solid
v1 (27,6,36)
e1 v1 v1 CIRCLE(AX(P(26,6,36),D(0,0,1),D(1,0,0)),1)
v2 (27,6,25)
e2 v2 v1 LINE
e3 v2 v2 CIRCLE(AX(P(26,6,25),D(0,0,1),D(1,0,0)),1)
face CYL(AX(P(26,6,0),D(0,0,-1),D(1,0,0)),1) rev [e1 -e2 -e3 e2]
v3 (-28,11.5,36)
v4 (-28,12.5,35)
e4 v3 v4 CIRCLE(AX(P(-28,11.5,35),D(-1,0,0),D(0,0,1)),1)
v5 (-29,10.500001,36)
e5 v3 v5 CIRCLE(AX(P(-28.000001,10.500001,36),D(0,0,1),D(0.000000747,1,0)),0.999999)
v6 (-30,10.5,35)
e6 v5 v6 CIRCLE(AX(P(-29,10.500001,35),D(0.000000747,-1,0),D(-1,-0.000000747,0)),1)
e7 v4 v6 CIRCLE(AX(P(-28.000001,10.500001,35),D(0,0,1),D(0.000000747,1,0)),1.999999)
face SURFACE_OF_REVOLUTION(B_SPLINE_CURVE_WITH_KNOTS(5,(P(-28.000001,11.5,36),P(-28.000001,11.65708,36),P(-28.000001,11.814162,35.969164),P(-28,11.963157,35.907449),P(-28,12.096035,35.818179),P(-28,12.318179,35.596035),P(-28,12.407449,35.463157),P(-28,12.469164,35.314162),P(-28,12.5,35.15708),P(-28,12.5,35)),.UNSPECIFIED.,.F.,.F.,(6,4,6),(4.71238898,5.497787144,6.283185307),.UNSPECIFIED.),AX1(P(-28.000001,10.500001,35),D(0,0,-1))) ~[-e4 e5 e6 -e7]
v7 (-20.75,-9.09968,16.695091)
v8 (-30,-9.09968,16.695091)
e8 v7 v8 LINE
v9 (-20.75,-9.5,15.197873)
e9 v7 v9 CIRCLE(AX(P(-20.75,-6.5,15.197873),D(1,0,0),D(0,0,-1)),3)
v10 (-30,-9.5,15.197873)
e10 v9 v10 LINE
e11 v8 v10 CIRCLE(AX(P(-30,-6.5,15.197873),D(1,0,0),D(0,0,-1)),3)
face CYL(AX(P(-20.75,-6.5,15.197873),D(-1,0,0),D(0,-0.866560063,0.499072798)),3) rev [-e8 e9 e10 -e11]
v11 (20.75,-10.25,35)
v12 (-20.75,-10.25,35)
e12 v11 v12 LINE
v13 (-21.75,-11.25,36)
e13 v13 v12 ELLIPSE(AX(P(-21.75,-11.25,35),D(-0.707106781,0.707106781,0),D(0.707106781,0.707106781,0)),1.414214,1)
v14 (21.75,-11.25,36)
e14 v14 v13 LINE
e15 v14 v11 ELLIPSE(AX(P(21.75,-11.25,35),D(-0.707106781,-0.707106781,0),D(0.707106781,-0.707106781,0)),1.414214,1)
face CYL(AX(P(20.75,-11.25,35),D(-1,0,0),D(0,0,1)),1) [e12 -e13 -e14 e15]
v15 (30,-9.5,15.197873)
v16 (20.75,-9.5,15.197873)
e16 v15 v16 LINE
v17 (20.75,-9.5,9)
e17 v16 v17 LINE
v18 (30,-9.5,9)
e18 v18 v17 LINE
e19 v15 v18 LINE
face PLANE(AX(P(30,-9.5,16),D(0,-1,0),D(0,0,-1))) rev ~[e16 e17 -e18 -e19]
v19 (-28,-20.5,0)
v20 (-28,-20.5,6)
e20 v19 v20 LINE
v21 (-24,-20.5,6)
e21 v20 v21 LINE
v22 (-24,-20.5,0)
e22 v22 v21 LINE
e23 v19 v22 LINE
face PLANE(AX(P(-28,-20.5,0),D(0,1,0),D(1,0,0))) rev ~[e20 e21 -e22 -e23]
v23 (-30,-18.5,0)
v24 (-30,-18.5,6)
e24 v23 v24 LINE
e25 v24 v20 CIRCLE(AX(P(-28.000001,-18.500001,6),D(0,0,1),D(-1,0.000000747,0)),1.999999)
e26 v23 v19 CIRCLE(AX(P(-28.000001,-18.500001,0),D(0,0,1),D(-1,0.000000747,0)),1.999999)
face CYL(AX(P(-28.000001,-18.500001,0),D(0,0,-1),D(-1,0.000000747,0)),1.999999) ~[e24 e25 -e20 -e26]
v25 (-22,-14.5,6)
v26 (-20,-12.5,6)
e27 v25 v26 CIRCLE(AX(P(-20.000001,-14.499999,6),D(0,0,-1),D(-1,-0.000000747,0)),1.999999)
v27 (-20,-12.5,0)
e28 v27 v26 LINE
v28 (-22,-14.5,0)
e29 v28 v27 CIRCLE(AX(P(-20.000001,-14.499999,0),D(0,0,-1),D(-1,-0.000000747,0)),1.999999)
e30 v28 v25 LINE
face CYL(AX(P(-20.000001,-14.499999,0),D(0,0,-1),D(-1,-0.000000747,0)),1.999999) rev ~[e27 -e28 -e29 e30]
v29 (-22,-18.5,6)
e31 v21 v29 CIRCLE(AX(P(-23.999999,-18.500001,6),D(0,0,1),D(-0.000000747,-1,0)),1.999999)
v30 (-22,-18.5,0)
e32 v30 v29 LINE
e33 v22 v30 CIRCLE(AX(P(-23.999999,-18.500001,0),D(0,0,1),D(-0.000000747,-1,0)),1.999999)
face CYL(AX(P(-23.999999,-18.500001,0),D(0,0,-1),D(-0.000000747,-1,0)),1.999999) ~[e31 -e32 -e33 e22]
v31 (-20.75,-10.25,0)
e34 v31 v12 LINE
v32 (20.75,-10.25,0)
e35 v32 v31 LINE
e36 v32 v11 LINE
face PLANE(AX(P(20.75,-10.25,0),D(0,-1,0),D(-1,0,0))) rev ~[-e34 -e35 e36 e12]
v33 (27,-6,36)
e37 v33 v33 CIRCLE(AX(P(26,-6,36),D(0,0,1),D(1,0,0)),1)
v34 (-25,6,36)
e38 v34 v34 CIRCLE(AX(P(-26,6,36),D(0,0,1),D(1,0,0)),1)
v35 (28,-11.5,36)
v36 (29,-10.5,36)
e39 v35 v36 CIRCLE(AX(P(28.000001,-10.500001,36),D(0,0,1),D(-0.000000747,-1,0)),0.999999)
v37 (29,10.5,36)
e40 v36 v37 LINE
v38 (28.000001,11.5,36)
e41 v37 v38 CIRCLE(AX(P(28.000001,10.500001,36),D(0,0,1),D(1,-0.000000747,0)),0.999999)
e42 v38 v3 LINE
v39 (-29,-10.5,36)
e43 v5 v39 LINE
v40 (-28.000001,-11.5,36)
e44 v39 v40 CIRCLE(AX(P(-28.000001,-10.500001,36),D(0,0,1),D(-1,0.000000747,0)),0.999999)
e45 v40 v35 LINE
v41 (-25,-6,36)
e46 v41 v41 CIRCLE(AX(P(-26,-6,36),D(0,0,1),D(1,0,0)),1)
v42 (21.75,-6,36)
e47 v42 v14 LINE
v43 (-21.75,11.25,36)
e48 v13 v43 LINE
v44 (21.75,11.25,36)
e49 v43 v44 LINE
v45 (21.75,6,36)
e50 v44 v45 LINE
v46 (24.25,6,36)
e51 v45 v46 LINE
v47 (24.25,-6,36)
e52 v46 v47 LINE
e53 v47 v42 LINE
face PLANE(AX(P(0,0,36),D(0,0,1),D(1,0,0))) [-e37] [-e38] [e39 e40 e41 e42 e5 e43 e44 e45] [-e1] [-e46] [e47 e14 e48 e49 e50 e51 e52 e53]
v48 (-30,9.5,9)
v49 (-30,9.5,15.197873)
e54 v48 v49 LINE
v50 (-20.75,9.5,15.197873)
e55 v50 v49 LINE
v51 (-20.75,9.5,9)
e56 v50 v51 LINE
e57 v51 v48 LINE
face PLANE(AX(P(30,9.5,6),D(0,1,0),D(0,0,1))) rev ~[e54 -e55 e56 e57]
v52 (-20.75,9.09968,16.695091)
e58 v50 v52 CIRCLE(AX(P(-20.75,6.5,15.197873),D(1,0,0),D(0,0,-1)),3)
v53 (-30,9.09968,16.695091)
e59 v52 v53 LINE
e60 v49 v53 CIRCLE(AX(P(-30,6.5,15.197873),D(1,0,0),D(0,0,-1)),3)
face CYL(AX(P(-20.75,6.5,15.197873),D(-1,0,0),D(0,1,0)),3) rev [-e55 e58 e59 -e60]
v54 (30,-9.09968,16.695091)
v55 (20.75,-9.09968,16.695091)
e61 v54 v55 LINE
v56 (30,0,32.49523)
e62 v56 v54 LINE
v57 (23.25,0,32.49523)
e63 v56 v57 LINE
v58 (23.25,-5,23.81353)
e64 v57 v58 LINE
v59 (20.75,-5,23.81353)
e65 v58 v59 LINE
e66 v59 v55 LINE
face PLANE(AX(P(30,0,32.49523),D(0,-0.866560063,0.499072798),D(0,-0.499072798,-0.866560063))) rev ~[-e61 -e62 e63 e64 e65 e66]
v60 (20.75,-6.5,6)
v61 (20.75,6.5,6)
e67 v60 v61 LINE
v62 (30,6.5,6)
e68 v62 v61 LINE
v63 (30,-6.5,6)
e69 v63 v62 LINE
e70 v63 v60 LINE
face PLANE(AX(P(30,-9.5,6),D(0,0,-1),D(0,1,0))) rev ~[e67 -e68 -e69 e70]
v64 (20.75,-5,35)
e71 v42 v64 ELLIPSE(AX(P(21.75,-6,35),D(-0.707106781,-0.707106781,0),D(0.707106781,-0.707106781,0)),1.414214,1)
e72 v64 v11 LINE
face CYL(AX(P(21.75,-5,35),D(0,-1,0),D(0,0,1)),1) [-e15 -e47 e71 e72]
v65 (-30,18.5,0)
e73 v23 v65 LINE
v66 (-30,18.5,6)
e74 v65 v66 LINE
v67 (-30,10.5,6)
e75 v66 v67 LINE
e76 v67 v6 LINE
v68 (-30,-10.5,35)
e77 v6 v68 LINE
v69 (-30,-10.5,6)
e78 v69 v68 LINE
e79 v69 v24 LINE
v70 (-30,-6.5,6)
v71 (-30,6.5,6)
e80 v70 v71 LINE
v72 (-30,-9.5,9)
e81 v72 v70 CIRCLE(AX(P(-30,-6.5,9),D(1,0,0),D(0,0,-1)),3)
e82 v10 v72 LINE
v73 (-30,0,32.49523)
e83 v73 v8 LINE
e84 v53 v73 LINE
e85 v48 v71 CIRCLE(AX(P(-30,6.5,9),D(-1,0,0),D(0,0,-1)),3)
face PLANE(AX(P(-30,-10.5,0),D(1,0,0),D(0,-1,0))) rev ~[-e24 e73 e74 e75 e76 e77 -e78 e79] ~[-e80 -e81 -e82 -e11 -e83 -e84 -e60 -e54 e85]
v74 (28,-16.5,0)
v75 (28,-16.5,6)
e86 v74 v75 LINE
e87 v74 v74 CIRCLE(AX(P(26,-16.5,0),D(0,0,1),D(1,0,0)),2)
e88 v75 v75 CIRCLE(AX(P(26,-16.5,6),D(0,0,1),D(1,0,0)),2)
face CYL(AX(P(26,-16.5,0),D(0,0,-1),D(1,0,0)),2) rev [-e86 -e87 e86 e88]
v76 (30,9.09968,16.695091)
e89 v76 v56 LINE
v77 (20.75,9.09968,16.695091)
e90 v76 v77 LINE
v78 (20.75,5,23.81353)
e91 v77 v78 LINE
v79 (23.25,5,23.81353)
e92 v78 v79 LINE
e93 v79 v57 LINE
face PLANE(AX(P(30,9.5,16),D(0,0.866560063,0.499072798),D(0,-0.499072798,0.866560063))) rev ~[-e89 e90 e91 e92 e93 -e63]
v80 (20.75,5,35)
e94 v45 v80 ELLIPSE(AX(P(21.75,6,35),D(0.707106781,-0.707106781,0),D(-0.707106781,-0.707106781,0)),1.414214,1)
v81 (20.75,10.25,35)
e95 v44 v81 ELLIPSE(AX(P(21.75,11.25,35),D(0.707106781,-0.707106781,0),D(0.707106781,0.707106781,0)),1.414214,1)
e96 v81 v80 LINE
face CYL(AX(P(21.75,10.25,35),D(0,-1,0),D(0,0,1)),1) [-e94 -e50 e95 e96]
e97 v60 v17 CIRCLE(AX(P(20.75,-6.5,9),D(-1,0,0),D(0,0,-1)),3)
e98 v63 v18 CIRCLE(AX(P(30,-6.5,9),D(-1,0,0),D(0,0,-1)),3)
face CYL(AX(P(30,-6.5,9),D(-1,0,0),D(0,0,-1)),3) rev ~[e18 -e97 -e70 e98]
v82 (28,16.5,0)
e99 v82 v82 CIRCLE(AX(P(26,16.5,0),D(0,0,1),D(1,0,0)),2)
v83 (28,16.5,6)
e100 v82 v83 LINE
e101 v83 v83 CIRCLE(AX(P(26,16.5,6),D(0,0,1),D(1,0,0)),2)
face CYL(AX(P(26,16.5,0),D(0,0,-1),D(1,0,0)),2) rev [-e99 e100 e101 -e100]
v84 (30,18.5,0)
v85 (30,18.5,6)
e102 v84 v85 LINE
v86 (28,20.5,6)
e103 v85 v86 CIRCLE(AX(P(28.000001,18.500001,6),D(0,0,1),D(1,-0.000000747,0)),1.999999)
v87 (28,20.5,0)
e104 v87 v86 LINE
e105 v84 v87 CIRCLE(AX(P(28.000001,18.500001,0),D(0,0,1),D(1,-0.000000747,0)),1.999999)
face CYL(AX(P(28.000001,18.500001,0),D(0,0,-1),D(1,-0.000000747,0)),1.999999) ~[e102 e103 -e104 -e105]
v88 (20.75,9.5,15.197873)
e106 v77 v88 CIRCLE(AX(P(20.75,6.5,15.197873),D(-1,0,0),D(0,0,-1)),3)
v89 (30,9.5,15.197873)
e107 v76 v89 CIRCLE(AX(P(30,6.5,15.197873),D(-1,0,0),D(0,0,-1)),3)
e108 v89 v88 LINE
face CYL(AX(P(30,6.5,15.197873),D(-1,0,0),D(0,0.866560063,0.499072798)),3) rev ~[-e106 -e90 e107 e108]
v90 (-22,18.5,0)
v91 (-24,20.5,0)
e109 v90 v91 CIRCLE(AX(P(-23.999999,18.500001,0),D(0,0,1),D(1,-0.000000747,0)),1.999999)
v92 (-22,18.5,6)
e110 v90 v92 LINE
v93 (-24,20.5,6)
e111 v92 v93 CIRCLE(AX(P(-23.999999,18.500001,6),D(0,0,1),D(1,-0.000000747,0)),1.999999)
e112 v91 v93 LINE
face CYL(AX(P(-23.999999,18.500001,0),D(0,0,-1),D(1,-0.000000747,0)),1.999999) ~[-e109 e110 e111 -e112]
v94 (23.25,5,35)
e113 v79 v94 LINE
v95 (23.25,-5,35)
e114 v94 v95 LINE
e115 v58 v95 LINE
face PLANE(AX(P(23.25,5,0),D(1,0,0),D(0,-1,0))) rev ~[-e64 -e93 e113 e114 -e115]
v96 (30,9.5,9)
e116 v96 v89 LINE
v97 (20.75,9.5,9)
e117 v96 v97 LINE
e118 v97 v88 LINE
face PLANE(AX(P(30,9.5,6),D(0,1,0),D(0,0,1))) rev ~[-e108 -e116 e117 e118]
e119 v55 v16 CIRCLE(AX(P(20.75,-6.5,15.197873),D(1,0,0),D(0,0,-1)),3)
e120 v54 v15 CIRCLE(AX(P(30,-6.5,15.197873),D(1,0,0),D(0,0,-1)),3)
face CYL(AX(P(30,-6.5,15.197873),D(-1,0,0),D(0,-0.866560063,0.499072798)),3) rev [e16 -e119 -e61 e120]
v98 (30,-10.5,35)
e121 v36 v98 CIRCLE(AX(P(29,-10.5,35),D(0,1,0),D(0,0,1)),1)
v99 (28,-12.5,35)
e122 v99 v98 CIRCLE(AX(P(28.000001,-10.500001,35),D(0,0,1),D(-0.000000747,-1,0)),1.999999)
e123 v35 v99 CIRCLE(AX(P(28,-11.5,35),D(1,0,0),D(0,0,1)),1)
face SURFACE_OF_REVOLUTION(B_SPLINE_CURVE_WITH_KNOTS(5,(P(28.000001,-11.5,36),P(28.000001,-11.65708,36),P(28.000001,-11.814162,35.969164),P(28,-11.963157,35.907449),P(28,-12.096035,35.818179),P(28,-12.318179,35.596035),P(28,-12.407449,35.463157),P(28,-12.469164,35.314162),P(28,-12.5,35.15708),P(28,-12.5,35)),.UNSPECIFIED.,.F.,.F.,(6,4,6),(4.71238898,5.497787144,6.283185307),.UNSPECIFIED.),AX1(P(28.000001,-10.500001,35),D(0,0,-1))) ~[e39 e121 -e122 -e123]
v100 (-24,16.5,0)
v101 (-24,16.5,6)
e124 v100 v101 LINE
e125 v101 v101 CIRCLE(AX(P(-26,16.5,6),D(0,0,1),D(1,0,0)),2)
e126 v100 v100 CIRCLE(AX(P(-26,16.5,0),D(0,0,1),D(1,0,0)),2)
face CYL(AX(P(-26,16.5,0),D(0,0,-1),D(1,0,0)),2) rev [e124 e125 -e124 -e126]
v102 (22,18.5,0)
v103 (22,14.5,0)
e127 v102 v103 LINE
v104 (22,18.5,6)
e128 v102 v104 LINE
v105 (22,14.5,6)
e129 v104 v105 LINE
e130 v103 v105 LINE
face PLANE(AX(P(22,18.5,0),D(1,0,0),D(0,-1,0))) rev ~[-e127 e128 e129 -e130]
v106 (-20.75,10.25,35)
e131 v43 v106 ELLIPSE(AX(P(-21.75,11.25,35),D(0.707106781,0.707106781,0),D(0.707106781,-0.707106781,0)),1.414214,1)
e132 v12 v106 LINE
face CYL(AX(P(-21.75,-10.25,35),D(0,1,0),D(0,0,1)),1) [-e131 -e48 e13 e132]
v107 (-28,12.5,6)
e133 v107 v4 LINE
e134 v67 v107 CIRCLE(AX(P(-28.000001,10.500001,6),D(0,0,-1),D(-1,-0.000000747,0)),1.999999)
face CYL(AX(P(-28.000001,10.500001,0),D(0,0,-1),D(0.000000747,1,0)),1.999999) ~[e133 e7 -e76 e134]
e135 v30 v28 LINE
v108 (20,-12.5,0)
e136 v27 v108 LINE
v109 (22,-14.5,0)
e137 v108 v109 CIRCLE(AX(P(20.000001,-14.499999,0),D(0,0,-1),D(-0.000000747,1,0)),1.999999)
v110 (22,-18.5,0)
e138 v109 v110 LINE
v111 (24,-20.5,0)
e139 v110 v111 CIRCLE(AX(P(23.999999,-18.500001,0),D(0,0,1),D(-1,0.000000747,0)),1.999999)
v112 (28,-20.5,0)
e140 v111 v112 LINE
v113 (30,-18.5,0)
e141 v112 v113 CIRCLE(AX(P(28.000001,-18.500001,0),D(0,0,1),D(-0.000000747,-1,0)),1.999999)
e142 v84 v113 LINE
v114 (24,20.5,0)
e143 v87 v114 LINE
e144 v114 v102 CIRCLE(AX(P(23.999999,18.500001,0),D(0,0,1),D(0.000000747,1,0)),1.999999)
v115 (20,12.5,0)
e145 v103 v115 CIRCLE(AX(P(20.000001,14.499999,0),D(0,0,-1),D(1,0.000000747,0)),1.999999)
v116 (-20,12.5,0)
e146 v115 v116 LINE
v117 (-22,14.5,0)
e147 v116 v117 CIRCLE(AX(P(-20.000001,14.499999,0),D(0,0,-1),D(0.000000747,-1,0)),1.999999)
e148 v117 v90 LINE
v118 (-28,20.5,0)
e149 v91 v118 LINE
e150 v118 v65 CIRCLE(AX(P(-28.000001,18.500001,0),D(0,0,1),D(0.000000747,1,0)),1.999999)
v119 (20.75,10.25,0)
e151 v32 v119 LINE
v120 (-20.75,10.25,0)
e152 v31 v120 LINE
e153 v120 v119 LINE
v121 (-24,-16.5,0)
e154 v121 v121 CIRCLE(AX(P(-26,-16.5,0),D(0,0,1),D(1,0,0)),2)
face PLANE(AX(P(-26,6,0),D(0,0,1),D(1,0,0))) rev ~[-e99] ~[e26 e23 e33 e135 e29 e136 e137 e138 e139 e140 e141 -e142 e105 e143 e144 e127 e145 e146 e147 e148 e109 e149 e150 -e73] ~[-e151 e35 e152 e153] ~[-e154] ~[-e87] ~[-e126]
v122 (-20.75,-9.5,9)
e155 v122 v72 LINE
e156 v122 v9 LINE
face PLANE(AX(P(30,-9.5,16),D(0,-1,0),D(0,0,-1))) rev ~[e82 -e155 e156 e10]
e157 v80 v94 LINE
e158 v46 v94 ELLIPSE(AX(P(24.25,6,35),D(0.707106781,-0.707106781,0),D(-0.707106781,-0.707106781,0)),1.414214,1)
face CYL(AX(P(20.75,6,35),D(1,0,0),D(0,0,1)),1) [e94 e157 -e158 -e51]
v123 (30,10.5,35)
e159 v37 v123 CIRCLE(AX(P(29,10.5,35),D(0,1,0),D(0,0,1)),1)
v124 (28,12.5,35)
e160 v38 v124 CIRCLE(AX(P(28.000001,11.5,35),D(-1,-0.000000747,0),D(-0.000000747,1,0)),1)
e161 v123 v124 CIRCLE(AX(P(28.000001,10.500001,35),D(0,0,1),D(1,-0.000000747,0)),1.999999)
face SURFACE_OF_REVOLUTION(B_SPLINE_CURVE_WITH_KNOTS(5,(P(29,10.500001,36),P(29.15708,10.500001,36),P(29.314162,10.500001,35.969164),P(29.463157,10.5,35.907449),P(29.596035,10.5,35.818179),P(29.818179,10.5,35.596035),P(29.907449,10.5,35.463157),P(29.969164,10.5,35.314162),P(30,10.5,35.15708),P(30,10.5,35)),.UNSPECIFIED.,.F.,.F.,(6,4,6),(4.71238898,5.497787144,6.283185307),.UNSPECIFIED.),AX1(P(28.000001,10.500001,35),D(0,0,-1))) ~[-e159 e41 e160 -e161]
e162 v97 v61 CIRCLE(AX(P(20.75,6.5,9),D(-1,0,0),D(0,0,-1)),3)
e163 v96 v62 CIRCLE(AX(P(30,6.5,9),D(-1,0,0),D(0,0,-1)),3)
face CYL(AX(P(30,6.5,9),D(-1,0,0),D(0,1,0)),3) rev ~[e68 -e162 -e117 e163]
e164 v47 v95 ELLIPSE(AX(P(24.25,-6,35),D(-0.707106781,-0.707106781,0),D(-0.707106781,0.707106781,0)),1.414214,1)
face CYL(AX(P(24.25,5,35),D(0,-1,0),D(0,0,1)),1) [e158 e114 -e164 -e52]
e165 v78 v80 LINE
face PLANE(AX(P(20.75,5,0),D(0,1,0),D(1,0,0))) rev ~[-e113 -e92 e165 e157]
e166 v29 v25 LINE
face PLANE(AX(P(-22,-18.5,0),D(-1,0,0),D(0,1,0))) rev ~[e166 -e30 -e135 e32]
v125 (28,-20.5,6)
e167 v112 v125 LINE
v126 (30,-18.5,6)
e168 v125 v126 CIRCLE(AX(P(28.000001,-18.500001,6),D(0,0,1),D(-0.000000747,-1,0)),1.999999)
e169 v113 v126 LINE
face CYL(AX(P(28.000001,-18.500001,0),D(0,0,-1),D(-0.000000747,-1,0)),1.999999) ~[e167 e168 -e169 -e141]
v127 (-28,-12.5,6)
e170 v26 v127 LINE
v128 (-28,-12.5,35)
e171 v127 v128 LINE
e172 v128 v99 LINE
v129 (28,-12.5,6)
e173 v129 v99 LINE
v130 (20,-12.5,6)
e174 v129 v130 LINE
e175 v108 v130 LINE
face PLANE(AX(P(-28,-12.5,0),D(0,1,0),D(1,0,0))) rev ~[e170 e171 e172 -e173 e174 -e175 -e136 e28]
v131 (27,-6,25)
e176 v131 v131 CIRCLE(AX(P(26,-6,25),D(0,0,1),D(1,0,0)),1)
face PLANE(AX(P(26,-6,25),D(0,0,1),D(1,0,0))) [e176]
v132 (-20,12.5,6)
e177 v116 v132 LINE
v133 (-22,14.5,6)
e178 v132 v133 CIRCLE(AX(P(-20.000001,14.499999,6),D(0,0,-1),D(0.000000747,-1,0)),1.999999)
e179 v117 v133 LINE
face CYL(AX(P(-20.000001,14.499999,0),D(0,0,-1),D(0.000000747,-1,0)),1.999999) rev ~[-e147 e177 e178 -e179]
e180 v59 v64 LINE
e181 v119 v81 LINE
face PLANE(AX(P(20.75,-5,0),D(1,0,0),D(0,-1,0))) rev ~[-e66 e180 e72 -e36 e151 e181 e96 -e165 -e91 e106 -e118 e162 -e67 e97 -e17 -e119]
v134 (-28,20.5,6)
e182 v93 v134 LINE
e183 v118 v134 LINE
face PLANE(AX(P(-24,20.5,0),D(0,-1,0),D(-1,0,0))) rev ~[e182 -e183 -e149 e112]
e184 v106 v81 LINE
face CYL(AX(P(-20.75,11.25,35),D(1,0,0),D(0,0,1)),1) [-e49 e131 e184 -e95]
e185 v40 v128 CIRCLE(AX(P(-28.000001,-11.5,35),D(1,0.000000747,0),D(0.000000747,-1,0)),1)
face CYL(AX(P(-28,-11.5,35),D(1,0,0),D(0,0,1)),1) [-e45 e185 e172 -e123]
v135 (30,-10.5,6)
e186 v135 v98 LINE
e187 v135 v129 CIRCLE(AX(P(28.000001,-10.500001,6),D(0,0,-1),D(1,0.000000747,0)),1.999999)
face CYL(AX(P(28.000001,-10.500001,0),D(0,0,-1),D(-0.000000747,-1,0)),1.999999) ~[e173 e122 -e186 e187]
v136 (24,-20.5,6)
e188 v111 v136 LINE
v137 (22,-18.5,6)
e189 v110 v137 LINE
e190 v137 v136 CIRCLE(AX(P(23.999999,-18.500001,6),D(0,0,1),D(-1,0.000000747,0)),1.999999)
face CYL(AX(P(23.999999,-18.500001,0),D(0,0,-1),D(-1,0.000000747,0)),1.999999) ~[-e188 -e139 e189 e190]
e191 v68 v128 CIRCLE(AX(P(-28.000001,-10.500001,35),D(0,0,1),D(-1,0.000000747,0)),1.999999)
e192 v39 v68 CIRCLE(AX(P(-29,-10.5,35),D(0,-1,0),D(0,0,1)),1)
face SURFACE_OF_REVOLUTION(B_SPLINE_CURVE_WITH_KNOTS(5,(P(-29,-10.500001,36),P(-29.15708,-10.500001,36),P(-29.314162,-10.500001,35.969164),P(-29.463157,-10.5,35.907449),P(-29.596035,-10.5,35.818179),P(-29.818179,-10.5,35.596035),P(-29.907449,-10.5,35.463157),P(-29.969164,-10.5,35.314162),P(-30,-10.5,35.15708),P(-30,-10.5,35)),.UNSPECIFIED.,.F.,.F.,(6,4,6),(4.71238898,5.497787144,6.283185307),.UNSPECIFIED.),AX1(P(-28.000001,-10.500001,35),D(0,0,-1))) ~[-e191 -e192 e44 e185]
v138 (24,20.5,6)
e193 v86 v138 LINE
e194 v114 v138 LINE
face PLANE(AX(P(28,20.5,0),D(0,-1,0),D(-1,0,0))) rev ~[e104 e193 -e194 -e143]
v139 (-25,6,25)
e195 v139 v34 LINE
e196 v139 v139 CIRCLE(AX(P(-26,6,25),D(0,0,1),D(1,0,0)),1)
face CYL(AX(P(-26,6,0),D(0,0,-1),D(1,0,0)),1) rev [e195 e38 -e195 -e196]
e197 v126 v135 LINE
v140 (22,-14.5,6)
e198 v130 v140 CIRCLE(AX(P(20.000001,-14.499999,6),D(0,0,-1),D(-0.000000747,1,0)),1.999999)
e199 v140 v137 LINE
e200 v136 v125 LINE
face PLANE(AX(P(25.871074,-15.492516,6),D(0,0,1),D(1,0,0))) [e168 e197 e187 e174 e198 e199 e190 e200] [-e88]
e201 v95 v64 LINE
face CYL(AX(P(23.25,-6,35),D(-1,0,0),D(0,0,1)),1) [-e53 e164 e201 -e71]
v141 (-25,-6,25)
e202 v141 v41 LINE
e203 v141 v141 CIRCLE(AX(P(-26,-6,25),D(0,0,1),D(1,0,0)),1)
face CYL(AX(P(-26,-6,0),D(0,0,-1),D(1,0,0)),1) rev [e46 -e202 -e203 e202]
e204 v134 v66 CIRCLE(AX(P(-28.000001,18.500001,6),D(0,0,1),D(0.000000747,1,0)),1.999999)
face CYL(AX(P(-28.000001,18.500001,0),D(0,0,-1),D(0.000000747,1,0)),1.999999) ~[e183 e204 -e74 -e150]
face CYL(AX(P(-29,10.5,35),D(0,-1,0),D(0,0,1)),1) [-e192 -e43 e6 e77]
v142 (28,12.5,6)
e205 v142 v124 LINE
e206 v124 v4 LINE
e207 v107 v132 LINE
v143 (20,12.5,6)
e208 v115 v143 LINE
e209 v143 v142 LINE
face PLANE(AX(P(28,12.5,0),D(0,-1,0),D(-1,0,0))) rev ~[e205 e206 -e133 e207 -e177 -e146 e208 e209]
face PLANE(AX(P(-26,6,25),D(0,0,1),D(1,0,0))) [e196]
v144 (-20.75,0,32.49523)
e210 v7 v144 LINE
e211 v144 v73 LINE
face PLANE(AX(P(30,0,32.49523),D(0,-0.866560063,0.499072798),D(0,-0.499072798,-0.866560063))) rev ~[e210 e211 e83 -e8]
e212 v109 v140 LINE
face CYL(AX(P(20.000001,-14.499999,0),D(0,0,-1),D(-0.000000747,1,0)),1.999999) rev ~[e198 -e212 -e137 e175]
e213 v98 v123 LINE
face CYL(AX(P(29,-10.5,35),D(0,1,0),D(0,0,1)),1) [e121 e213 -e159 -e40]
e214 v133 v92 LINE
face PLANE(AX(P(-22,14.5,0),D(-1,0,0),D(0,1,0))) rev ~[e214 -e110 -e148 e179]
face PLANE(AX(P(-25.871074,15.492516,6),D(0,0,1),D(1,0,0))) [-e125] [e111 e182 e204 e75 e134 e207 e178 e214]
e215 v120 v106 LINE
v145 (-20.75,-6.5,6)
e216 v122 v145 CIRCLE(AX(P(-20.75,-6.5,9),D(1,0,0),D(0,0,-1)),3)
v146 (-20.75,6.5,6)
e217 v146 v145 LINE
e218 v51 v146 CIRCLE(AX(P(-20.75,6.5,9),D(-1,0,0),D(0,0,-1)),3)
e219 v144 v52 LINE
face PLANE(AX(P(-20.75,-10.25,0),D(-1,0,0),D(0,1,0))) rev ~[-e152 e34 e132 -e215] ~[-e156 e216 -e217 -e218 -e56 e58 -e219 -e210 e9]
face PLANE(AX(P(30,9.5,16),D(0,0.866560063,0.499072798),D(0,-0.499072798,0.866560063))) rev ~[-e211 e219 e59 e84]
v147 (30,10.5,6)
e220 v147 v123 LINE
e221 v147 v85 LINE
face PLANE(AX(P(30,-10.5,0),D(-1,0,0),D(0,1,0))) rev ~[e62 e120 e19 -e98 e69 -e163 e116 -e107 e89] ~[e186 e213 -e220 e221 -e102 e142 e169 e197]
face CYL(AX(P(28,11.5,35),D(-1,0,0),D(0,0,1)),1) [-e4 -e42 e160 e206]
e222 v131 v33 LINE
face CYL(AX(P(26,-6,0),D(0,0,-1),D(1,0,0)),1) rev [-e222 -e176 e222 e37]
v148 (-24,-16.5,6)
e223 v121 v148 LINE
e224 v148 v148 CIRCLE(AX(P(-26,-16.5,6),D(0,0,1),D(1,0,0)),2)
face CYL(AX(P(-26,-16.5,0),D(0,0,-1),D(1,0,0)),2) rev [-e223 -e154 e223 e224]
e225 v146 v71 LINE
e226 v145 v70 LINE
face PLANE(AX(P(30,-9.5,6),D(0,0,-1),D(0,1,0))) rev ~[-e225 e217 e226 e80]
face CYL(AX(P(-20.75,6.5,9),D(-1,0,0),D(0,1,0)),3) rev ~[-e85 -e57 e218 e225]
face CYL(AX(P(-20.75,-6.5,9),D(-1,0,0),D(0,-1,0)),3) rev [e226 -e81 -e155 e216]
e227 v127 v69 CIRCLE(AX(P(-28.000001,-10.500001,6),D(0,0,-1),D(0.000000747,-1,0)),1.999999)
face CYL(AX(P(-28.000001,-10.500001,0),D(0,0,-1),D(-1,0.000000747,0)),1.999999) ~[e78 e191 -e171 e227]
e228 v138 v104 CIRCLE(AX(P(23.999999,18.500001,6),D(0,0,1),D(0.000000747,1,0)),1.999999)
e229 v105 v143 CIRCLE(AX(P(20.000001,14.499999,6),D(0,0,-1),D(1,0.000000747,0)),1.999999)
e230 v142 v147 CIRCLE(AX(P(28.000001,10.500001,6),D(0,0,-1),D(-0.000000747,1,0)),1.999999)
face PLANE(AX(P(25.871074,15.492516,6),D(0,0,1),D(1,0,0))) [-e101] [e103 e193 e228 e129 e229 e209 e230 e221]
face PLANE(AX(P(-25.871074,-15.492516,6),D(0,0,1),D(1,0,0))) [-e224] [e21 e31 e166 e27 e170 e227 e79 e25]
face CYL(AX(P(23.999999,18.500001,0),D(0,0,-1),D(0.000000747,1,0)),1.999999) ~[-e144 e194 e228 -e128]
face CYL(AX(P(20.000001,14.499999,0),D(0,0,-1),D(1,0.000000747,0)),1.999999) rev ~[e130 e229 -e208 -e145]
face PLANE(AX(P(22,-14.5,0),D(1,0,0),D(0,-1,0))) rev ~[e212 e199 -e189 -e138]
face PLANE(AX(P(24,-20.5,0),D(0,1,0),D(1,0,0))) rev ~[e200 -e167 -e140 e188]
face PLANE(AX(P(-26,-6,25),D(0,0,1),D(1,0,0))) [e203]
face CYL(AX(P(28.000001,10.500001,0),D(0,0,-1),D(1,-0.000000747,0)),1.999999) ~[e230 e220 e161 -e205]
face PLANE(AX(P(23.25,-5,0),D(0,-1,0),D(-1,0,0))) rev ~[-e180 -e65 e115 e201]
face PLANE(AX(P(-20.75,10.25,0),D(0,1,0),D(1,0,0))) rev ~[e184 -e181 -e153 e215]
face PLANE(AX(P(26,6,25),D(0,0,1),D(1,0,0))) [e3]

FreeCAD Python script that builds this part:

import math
import FreeCAD as App
import Part
import Sketcher
from FreeCAD import Vector
Q = App.Units.Quantity


def edges_at(feature, points):
    """Names of the edges that pass closest to the given points."""
    edges = feature.Shape.Edges
    near = lambda p: min(range(len(edges)), key=lambda i: edges[i].distToShape(Part.Vertex(*p))[0])
    return sorted({f"Edge{near(p) + 1}" for p in points})

doc = App.newDocument("Part")
params = doc.addObject("Spreadsheet::Sheet", "Params")
for row, (alias, value) in enumerate([
    ("sketch1_diameter", "2 mm"),
    ("sketch1_radius", "1.999999 mm"),
    ("sketch1_width", "56 mm"),
    ("sketch1_height", "21 mm"),
    ("sketch1_height2", "10 mm"),
    ("pad1_length", "36 mm"),
    ("sketch2_diameter", "4 mm"),
    ("sketch2_width", "8 mm"),
    ("sketch2_height", "10 mm"),
    ("sketch2_width2", "2.5 mm"),
    ("pad2_length", "6 mm"),
    ("fillet_radius", "1 mm"),
    ("fillet2_radius", "1 mm"),
    ("sketch3_diameter", "2 mm"),
    ("pad3_length", "25 mm"),
    ("sketch4_width", "19 mm"),
    ("sketch4_height", "10 mm"),
    ("pocket1_length", "100 mm"),
    ("fillet3_radius", "3 mm"),
], start=1):
    params.set(f"A{row}", alias)
    params.set(f"B{row}", "=" + value)
    params.setAlias(f"B{row}", alias)

body = doc.addObject("PartDesign::Body", "Body")

sketch1 = body.newObject("Sketcher::SketchObject", "Sketch")
sketch1.AttachmentSupport = (doc.getObject("XY_Plane"), [""])
sketch1.MapMode = "FlatFace"
sketch1.addGeometry(Part.ArcOfCircle(Part.Circle(Vector(28.000001, -10.500001, 0), Vector(0, 0, 1), 1.999999), math.radians(-90.000043), math.radians(0.000043)), False)
sketch1.addGeometry(Part.LineSegment(Vector(30, -10.5, 0), Vector(30, 10.5, 0)), False)
sketch1.addGeometry(Part.ArcOfCircle(Part.Circle(Vector(28.000001, 10.500001, 0), Vector(0, 0, 1), 1.999999), math.radians(-0.000043), math.radians(90.000043)), False)
sketch1.addGeometry(Part.LineSegment(Vector(28, 12.5, 0), Vector(-28, 12.5, 0)), False)
sketch1.addGeometry(Part.ArcOfCircle(Part.Circle(Vector(-28.000001, 10.500001, 0), Vector(0, 0, 1), 1.999999), math.radians(89.999957), math.radians(180.000043)), False)
sketch1.addGeometry(Part.LineSegment(Vector(-30, 10.5, 0), Vector(-30, -10.5, 0)), False)
sketch1.addGeometry(Part.ArcOfCircle(Part.Circle(Vector(-28.000001, -10.500001, 0), Vector(0, 0, 1), 1.999999), math.radians(179.999957), math.radians(270.000043)), False)
sketch1.addGeometry(Part.LineSegment(Vector(-28, -12.5, 0), Vector(28, -12.5, 0)), False)
sketch1.addGeometry(Part.Circle(Vector(-26, -6, 0), Vector(0, 0, 1), 1), False)
sketch1.addGeometry(Part.Circle(Vector(26, -6, 0), Vector(0, 0, 1), 1), False)
sketch1.addGeometry(Part.Circle(Vector(-26, 6, 0), Vector(0, 0, 1), 1), False)
sketch1.addGeometry(Part.LineSegment(Vector(20.75, -5, 0), Vector(20.75, -10.25, 0)), False)
sketch1.addGeometry(Part.LineSegment(Vector(20.75, -10.25, 0), Vector(-20.75, -10.25, 0)), False)
sketch1.addGeometry(Part.LineSegment(Vector(-20.75, -10.25, 0), Vector(-20.75, 10.25, 0)), False)
sketch1.addGeometry(Part.LineSegment(Vector(-20.75, 10.25, 0), Vector(20.75, 10.25, 0)), False)
sketch1.addGeometry(Part.LineSegment(Vector(20.75, 10.25, 0), Vector(20.75, 5, 0)), False)
sketch1.addGeometry(Part.LineSegment(Vector(20.75, 5, 0), Vector(23.25, 5, 0)), False)
sketch1.addGeometry(Part.LineSegment(Vector(23.25, 5, 0), Vector(23.25, -5, 0)), False)
sketch1.addGeometry(Part.LineSegment(Vector(23.25, -5, 0), Vector(20.75, -5, 0)), False)
sketch1.addGeometry(Part.Circle(Vector(26, 6, 0), Vector(0, 0, 1), 1), False)
sketch1.addConstraint(Sketcher.Constraint("Tangent", 0, 2, 1, 1))
sketch1.addConstraint(Sketcher.Constraint("Tangent", 1, 2, 2, 1))
sketch1.addConstraint(Sketcher.Constraint("Tangent", 2, 2, 3, 1))
sketch1.addConstraint(Sketcher.Constraint("Tangent", 3, 2, 4, 1))
sketch1.addConstraint(Sketcher.Constraint("Tangent", 4, 2, 5, 1))
sketch1.addConstraint(Sketcher.Constraint("Tangent", 5, 2, 6, 1))
sketch1.addConstraint(Sketcher.Constraint("Tangent", 6, 2, 7, 1))
sketch1.addConstraint(Sketcher.Constraint("Tangent", 7, 2, 0, 1))
sketch1.addConstraint(Sketcher.Constraint("Coincident", 11, 2, 12, 1))
sketch1.addConstraint(Sketcher.Constraint("Coincident", 12, 2, 13, 1))
sketch1.addConstraint(Sketcher.Constraint("Coincident", 13, 2, 14, 1))
sketch1.addConstraint(Sketcher.Constraint("Coincident", 14, 2, 15, 1))
sketch1.addConstraint(Sketcher.Constraint("Coincident", 15, 2, 16, 1))
sketch1.addConstraint(Sketcher.Constraint("Coincident", 16, 2, 17, 1))
sketch1.addConstraint(Sketcher.Constraint("Coincident", 17, 2, 18, 1))
sketch1.addConstraint(Sketcher.Constraint("Coincident", 18, 2, 11, 1))
sketch1.addConstraint(Sketcher.Constraint("Vertical", 1))
sketch1.addConstraint(Sketcher.Constraint("Horizontal", 3))
sketch1.addConstraint(Sketcher.Constraint("Vertical", 5))
sketch1.addConstraint(Sketcher.Constraint("Horizontal", 7))
sketch1.addConstraint(Sketcher.Constraint("Vertical", 11))
sketch1.addConstraint(Sketcher.Constraint("Horizontal", 12))
sketch1.addConstraint(Sketcher.Constraint("Vertical", 13))
sketch1.addConstraint(Sketcher.Constraint("Horizontal", 14))
sketch1.addConstraint(Sketcher.Constraint("Vertical", 15))
sketch1.addConstraint(Sketcher.Constraint("Horizontal", 16))
sketch1.addConstraint(Sketcher.Constraint("Vertical", 17))
sketch1.addConstraint(Sketcher.Constraint("Horizontal", 18))
sketch1.addConstraint(Sketcher.Constraint("Equal", 0, 2))
sketch1.addConstraint(Sketcher.Constraint("Equal", 2, 4))
sketch1.addConstraint(Sketcher.Constraint("Equal", 4, 6))
sketch1.addConstraint(Sketcher.Constraint("Equal", 8, 9))
sketch1.addConstraint(Sketcher.Constraint("Equal", 9, 10))
sketch1.addConstraint(Sketcher.Constraint("Equal", 10, 19))
sketch1.addConstraint(Sketcher.Constraint("Symmetric", 0, 3, 4, 3, -1, 1))
sketch1.addConstraint(Sketcher.Constraint("Symmetric", 9, 3, 10, 3, -1, 1))
sketch1.addConstraint(Sketcher.Constraint("Symmetric", 8, 3, 19, 3, -1, 1))
sketch1.addConstraint(Sketcher.Constraint("Symmetric", 11, 2, 13, 2, -1, 1))
sketch1.addConstraint(Sketcher.Constraint("Symmetric", 8, 3, 9, 3, -2))
sketch1.addConstraint(Sketcher.Constraint("Symmetric", 15, 2, 18, 2, -1))
sketch1.addConstraint(Sketcher.Constraint("Diameter", 8, Q("2 mm")))
sketch1.addConstraint(Sketcher.Constraint("Radius", 0, Q("1.999999 mm")))
sketch1.addConstraint(Sketcher.Constraint("DistanceX", 3, 2, 3, 1, Q("56 mm")))
sketch1.addConstraint(Sketcher.Constraint("DistanceY", 1, 1, 1, 2, Q("21 mm")))
sketch1.addConstraint(Sketcher.Constraint("DistanceY", 17, 2, 17, 1, Q("10 mm")))
sketch1.addConstraint(Sketcher.Constraint("DistanceX", 12, 2, 12, 1, Q("41.5 mm")))
sketch1.addConstraint(Sketcher.Constraint("DistanceX", 16, 1, 16, 2, Q("2.5 mm")))
sketch1.addConstraint(Sketcher.Constraint("DistanceY", 13, 1, 13, 2, Q("20.5 mm")))
sketch1.addConstraint(Sketcher.Constraint("DistanceX", 8, 3, -1, 1, Q("26 mm")))
sketch1.addConstraint(Sketcher.Constraint("DistanceY", 8, 3, -1, 1, Q("6 mm")))
sketch1.setExpression("Constraints[40]", "Params.sketch1_diameter")
sketch1.setExpression("Constraints[41]", "Params.sketch1_radius")
sketch1.setExpression("Constraints[42]", "Params.sketch1_width")
sketch1.setExpression("Constraints[43]", "Params.sketch1_height")
sketch1.setExpression("Constraints[44]", "Params.sketch1_height2")
pad1 = body.newObject("PartDesign::Pad", "Pad")
pad1.Profile = sketch1
pad1.setExpression("Length", "Params.pad1_length")

sketch2 = body.newObject("Sketcher::SketchObject", "Sketch001")
sketch2.AttachmentSupport = (doc.getObject("XY_Plane"), [""])
sketch2.MapMode = "FlatFace"
sketch2.addGeometry(Part.ArcOfCircle(Part.Circle(Vector(-20.000001, -14.499999, 0), Vector(0, 0, 1), 1.999999), math.radians(89.999957), math.radians(180.000043)), False)
sketch2.addGeometry(Part.LineSegment(Vector(-20, -12.5, 0), Vector(-28, -12.5, 0)), False)
sketch2.addGeometry(Part.ArcOfCircle(Part.Circle(Vector(-28.000001, -10.500001, 0), Vector(0, 0, 1), 1.999999), math.radians(179.999957), math.radians(270.000043)), False)
sketch2.addGeometry(Part.LineSegment(Vector(-30, -10.5, 0), Vector(-30, -18.5, 0)), False)
sketch2.addGeometry(Part.ArcOfCircle(Part.Circle(Vector(-28.000001, -18.500001, 0), Vector(0, 0, 1), 1.999999), math.radians(179.999957), math.radians(270.000043)), False)
sketch2.addGeometry(Part.LineSegment(Vector(-28, -20.5, 0), Vector(-24, -20.5, 0)), False)
sketch2.addGeometry(Part.ArcOfCircle(Part.Circle(Vector(-23.999999, -18.500001, 0), Vector(0, 0, 1), 1.999999), math.radians(-90.000043), math.radians(0.000043)), False)
sketch2.addGeometry(Part.LineSegment(Vector(-22, -18.5, 0), Vector(-22, -14.5, 0)), False)
sketch2.addGeometry(Part.Circle(Vector(-26, -16.5, 0), Vector(0, 0, 1), 2), False)
sketch2.addGeometry(Part.ArcOfCircle(Part.Circle(Vector(20.000001, -14.499999, 0), Vector(0, 0, 1), 1.999999), math.radians(-0.000043), math.radians(90.000043)), False)
sketch2.addGeometry(Part.LineSegment(Vector(22, -14.5, 0), Vector(22, -18.5, 0)), False)
sketch2.addGeometry(Part.ArcOfCircle(Part.Circle(Vector(23.999999, -18.500001, 0), Vector(0, 0, 1), 1.999999), math.radians(179.999957), math.radians(270.000043)), False)
sketch2.addGeometry(Part.LineSegment(Vector(24, -20.5, 0), Vector(28, -20.5, 0)), False)
sketch2.addGeometry(Part.ArcOfCircle(Part.Circle(Vector(28.000001, -18.500001, 0), Vector(0, 0, 1), 1.999999), math.radians(-90.000043), math.radians(0.000043)), False)
sketch2.addGeometry(Part.LineSegment(Vector(30, -18.5, 0), Vector(30, -10.5, 0)), False)
sketch2.addGeometry(Part.ArcOfCircle(Part.Circle(Vector(28.000001, -10.500001, 0), Vector(0, 0, 1), 1.999999), math.radians(-90.000043), math.radians(0.000043)), False)
sketch2.addGeometry(Part.LineSegment(Vector(28, -12.5, 0), Vector(20, -12.5, 0)), False)
sketch2.addGeometry(Part.Circle(Vector(26, -16.5, 0), Vector(0, 0, 1), 2), False)
sketch2.addGeometry(Part.ArcOfCircle(Part.Circle(Vector(28.000001, 10.500001, 0), Vector(0, 0, 1), 1.999999), math.radians(-0.000043), math.radians(90.000043)), False)
sketch2.addGeometry(Part.LineSegment(Vector(30, 10.5, 0), Vector(30, 18.5, 0)), False)
sketch2.addGeometry(Part.ArcOfCircle(Part.Circle(Vector(28.000001, 18.500001, 0), Vector(0, 0, 1), 1.999999), math.radians(-0.000043), math.radians(90.000043)), False)
sketch2.addGeometry(Part.LineSegment(Vector(28, 20.5, 0), Vector(24, 20.5, 0)), False)
sketch2.addGeometry(Part.ArcOfCircle(Part.Circle(Vector(23.999999, 18.500001, 0), Vector(0, 0, 1), 1.999999), math.radians(89.999957), math.radians(180.000043)), False)
sketch2.addGeometry(Part.LineSegment(Vector(22, 18.5, 0), Vector(22, 14.5, 0)), False)
sketch2.addGeometry(Part.ArcOfCircle(Part.Circle(Vector(20.000001, 14.499999, 0), Vector(0, 0, 1), 1.999999), math.radians(-90.000043), math.radians(0.000043)), False)
sketch2.addGeometry(Part.LineSegment(Vector(20, 12.5, 0), Vector(28, 12.5, 0)), False)
sketch2.addGeometry(Part.Circle(Vector(26, 16.5, 0), Vector(0, 0, 1), 2), False)
sketch2.addGeometry(Part.ArcOfCircle(Part.Circle(Vector(-28.000001, 10.500001, 0), Vector(0, 0, 1), 1.999999), math.radians(89.999957), math.radians(180.000043)), False)
sketch2.addGeometry(Part.LineSegment(Vector(-28, 12.5, 0), Vector(-20, 12.5, 0)), False)
sketch2.addGeometry(Part.ArcOfCircle(Part.Circle(Vector(-20.000001, 14.499999, 0), Vector(0, 0, 1), 1.999999), math.radians(179.999957), math.radians(270.000043)), False)
sketch2.addGeometry(Part.LineSegment(Vector(-22, 14.5, 0), Vector(-22, 18.5, 0)), False)
sketch2.addGeometry(Part.ArcOfCircle(Part.Circle(Vector(-23.999999, 18.500001, 0), Vector(0, 0, 1), 1.999999), math.radians(-0.000043), math.radians(90.000043)), False)
sketch2.addGeometry(Part.LineSegment(Vector(-24, 20.5, 0), Vector(-28, 20.5, 0)), False)
sketch2.addGeometry(Part.ArcOfCircle(Part.Circle(Vector(-28.000001, 18.500001, 0), Vector(0, 0, 1), 1.999999), math.radians(89.999957), math.radians(180.000043)), False)
sketch2.addGeometry(Part.LineSegment(Vector(-30, 18.5, 0), Vector(-30, 10.5, 0)), False)
sketch2.addGeometry(Part.Circle(Vector(-26, 16.5, 0), Vector(0, 0, 1), 2), False)
sketch2.addGeometry(Part.LineSegment(Vector(20.75, -5, 0), Vector(23.25, -5, 0)), False)
sketch2.addGeometry(Part.LineSegment(Vector(23.25, -5, 0), Vector(23.25, 5, 0)), False)
sketch2.addGeometry(Part.LineSegment(Vector(23.25, 5, 0), Vector(20.75, 5, 0)), False)
sketch2.addGeometry(Part.LineSegment(Vector(20.75, 5, 0), Vector(20.75, -5, 0)), False)
sketch2.addConstraint(Sketcher.Constraint("Tangent", 0, 1, 1, 1))
sketch2.addConstraint(Sketcher.Constraint("Tangent", 1, 2, 2, 2))
sketch2.addConstraint(Sketcher.Constraint("Tangent", 2, 1, 3, 1))
sketch2.addConstraint(Sketcher.Constraint("Tangent", 3, 2, 4, 1))
sketch2.addConstraint(Sketcher.Constraint("Tangent", 4, 2, 5, 1))
sketch2.addConstraint(Sketcher.Constraint("Tangent", 5, 2, 6, 1))
sketch2.addConstraint(Sketcher.Constraint("Tangent", 6, 2, 7, 1))
sketch2.addConstraint(Sketcher.Constraint("Tangent", 7, 2, 0, 2))
sketch2.addConstraint(Sketcher.Constraint("Tangent", 9, 1, 10, 1))
sketch2.addConstraint(Sketcher.Constraint("Tangent", 10, 2, 11, 1))
sketch2.addConstraint(Sketcher.Constraint("Tangent", 11, 2, 12, 1))
sketch2.addConstraint(Sketcher.Constraint("Tangent", 12, 2, 13, 1))
sketch2.addConstraint(Sketcher.Constraint("Tangent", 13, 2, 14, 1))
sketch2.addConstraint(Sketcher.Constraint("Tangent", 14, 2, 15, 2))
sketch2.addConstraint(Sketcher.Constraint("Tangent", 15, 1, 16, 1))
sketch2.addConstraint(Sketcher.Constraint("Tangent", 16, 2, 9, 2))
sketch2.addConstraint(Sketcher.Constraint("Tangent", 18, 1, 19, 1))
sketch2.addConstraint(Sketcher.Constraint("Tangent", 19, 2, 20, 1))
sketch2.addConstraint(Sketcher.Constraint("Tangent", 20, 2, 21, 1))
sketch2.addConstraint(Sketcher.Constraint("Tangent", 21, 2, 22, 1))
sketch2.addConstraint(Sketcher.Constraint("Tangent", 22, 2, 23, 1))
sketch2.addConstraint(Sketcher.Constraint("Tangent", 23, 2, 24, 2))
sketch2.addConstraint(Sketcher.Constraint("Tangent", 24, 1, 25, 1))
sketch2.addConstraint(Sketcher.Constraint("Tangent", 25, 2, 18, 2))
sketch2.addConstraint(Sketcher.Constraint("Tangent", 27, 1, 28, 1))
sketch2.addConstraint(Sketcher.Constraint("Tangent", 28, 2, 29, 2))
sketch2.addConstraint(Sketcher.Constraint("Tangent", 29, 1, 30, 1))
sketch2.addConstraint(Sketcher.Constraint("Tangent", 30, 2, 31, 1))
sketch2.addConstraint(Sketcher.Constraint("Tangent", 31, 2, 32, 1))
sketch2.addConstraint(Sketcher.Constraint("Tangent", 32, 2, 33, 1))
sketch2.addConstraint(Sketcher.Constraint("Tangent", 33, 2, 34, 1))
sketch2.addConstraint(Sketcher.Constraint("Tangent", 34, 2, 27, 2))
sketch2.addConstraint(Sketcher.Constraint("Coincident", 36, 2, 37, 1))
sketch2.addConstraint(Sketcher.Constraint("Coincident", 37, 2, 38, 1))
sketch2.addConstraint(Sketcher.Constraint("Coincident", 38, 2, 39, 1))
sketch2.addConstraint(Sketcher.Constraint("Coincident", 39, 2, 36, 1))
sketch2.addConstraint(Sketcher.Constraint("Horizontal", 1))
sketch2.addConstraint(Sketcher.Constraint("Vertical", 3))
sketch2.addConstraint(Sketcher.Constraint("Horizontal", 5))
sketch2.addConstraint(Sketcher.Constraint("Vertical", 7))
sketch2.addConstraint(Sketcher.Constraint("Vertical", 10))
sketch2.addConstraint(Sketcher.Constraint("Horizontal", 12))
sketch2.addConstraint(Sketcher.Constraint("Vertical", 14))
sketch2.addConstraint(Sketcher.Constraint("Horizontal", 16))
sketch2.addConstraint(Sketcher.Constraint("Vertical", 19))
sketch2.addConstraint(Sketcher.Constraint("Horizontal", 21))
sketch2.addConstraint(Sketcher.Constraint("Vertical", 23))
sketch2.addConstraint(Sketcher.Constraint("Horizontal", 25))
sketch2.addConstraint(Sketcher.Constraint("Horizontal", 28))
sketch2.addConstraint(Sketcher.Constraint("Vertical", 30))
sketch2.addConstraint(Sketcher.Constraint("Horizontal", 32))
sketch2.addConstraint(Sketcher.Constraint("Vertical", 34))
sketch2.addConstraint(Sketcher.Constraint("Horizontal", 36))
sketch2.addConstraint(Sketcher.Constraint("Vertical", 37))
sketch2.addConstraint(Sketcher.Constraint("Horizontal", 38))
sketch2.addConstraint(Sketcher.Constraint("Vertical", 39))
sketch2.addConstraint(Sketcher.Constraint("Equal", 0, 2))
sketch2.addConstraint(Sketcher.Constraint("Equal", 2, 4))
sketch2.addConstraint(Sketcher.Constraint("Equal", 4, 6))
sketch2.addConstraint(Sketcher.Constraint("Equal", 6, 8))
sketch2.addConstraint(Sketcher.Constraint("Equal", 8, 9))
sketch2.addConstraint(Sketcher.Constraint("Equal", 9, 11))
sketch2.addConstraint(Sketcher.Constraint("Equal", 11, 13))
sketch2.addConstraint(Sketcher.Constraint("Equal", 13, 15))
sketch2.addConstraint(Sketcher.Constraint("Equal", 15, 17))
sketch2.addConstraint(Sketcher.Constraint("Equal", 17, 18))
sketch2.addConstraint(Sketcher.Constraint("Equal", 18, 20))
sketch2.addConstraint(Sketcher.Constraint("Equal", 20, 22))
sketch2.addConstraint(Sketcher.Constraint("Equal", 22, 24))
sketch2.addConstraint(Sketcher.Constraint("Equal", 24, 26))
sketch2.addConstraint(Sketcher.Constraint("Equal", 26, 27))
sketch2.addConstraint(Sketcher.Constraint("Equal", 27, 29))
sketch2.addConstraint(Sketcher.Constraint("Equal", 29, 31))
sketch2.addConstraint(Sketcher.Constraint("Equal", 31, 33))
sketch2.addConstraint(Sketcher.Constraint("Equal", 33, 35))
sketch2.addConstraint(Sketcher.Constraint("Symmetric", 2, 3, 18, 3, -1, 1))
sketch2.addConstraint(Sketcher.Constraint("Symmetric", 6, 3, 22, 3, -1, 1))
sketch2.addConstraint(Sketcher.Constraint("Symmetric", 8, 3, 26, 3, -1, 1))
sketch2.addConstraint(Sketcher.Constraint("Symmetric", 15, 3, 27, 3, -1, 1))
sketch2.addConstraint(Sketcher.Constraint("Symmetric", 11, 3, 31, 3, -1, 1))
sketch2.addConstraint(Sketcher.Constraint("Symmetric", 17, 3, 35, 3, -1, 1))
sketch2.addConstraint(Sketcher.Constraint("Symmetric", 0, 3, 9, 3, -2))
sketch2.addConstraint(Sketcher.Constraint("Symmetric", 4, 3, 13, 3, -2))
sketch2.addConstraint(Sketcher.Constraint("Symmetric", 8, 3, 17, 3, -2))
sketch2.addConstraint(Sketcher.Constraint("Equal", 28, 3))
sketch2.addConstraint(Sketcher.Constraint("Diameter", 8, Q("4 mm")))
sketch2.addConstraint(Sketcher.Constraint("DistanceX", 1, 2, 1, 1, Q("8 mm")))
sketch2.addConstraint(Sketcher.Constraint("DistanceY", 37, 1, 37, 2, Q("10 mm")))
sketch2.addConstraint(Sketcher.Constraint("DistanceX", 36, 1, 36, 2, Q("2.5 mm")))
sketch2.addConstraint(Sketcher.Constraint("DistanceX", 0, 3, -1, 1, Q("20.000001 mm")))
sketch2.addConstraint(Sketcher.Constraint("DistanceX", 8, 3, -1, 1, Q("26 mm")))
sketch2.addConstraint(Sketcher.Constraint("DistanceY", 36, 2, -1, 1, Q("5 mm")))
sketch2.addConstraint(Sketcher.Constraint("DistanceY", 4, 3, 8, 3, Q("2.000001 mm")))
sketch2.addConstraint(Sketcher.Constraint("DistanceY", 9, 3, 18, 3, Q("25 mm")))
sketch2.addConstraint(Sketcher.Constraint("DistanceX", -1, 1, 36, 2, Q("23.25 mm")))
sketch2.setExpression("Constraints[85]", "Params.sketch2_diameter")
sketch2.setExpression("Constraints[86]", "Params.sketch2_width")
sketch2.setExpression("Constraints[87]", "Params.sketch2_height")
sketch2.setExpression("Constraints[88]", "Params.sketch2_width2")
pad2 = body.newObject("PartDesign::Pad", "Pad001")
pad2.Profile = sketch2
pad2.setExpression("Length", "Params.pad2_length")
doc.recompute()

fillet = body.newObject("PartDesign::Fillet", "Fillet")
fillet.Base = (pad2, edges_at(pad2, [
    (0, 10.25, 36),
    (-20.75, 0, 36),
    (20.75, 7.625, 36),
    (20.75, -7.625, 36),
    (0, -10.25, 36),
    (22, -5, 36),
    (23.25, 0, 36),
    (22, 5, 36),
]))
fillet.setExpression("Radius", "Params.fillet_radius")
doc.recompute()

fillet2 = body.newObject("PartDesign::Fillet", "Fillet001")
fillet2.Base = (fillet, edges_at(fillet, [
    (30, 0, 36),
    (0, 12.5, 36),
    (0, -12.5, 36),
    (29.414, -11.914, 36),
    (29.414, 11.914, 36),
    (-30, 0, 36),
    (-29.414, 11.914, 36),
    (-29.414, -11.914, 36),
]))
fillet2.setExpression("Radius", "Params.fillet2_radius")

sketch3 = body.newObject("Sketcher::SketchObject", "Sketch002")
sketch3.AttachmentSupport = (doc.getObject("XY_Plane"), [""])
sketch3.MapMode = "FlatFace"
sketch3.addGeometry(Part.Circle(Vector(-26, 6, 0), Vector(0, 0, 1), 1), False)
sketch3.addGeometry(Part.Circle(Vector(-26, -6, 0), Vector(0, 0, 1), 1), False)
sketch3.addGeometry(Part.Circle(Vector(26, -6, 0), Vector(0, 0, 1), 1), False)
sketch3.addGeometry(Part.Circle(Vector(26, 6, 0), Vector(0, 0, 1), 1), False)
sketch3.addConstraint(Sketcher.Constraint("Equal", 0, 1))
sketch3.addConstraint(Sketcher.Constraint("Equal", 1, 2))
sketch3.addConstraint(Sketcher.Constraint("Equal", 2, 3))
sketch3.addConstraint(Sketcher.Constraint("Symmetric", 0, 3, 2, 3, -1, 1))
sketch3.addConstraint(Sketcher.Constraint("Symmetric", 1, 3, 3, 3, -1, 1))
sketch3.addConstraint(Sketcher.Constraint("Symmetric", 1, 3, 2, 3, -2))
sketch3.addConstraint(Sketcher.Constraint("Diameter", 0, Q("2 mm")))
sketch3.addConstraint(Sketcher.Constraint("DistanceX", 0, 3, -1, 1, Q("26 mm")))
sketch3.addConstraint(Sketcher.Constraint("DistanceY", -1, 1, 0, 3, Q("6 mm")))
sketch3.setExpression("Constraints[6]", "Params.sketch3_diameter")
pad3 = body.newObject("PartDesign::Pad", "Pad002")
pad3.Profile = sketch3
pad3.setExpression("Length", "Params.pad3_length")

sketch4 = body.newObject("Sketcher::SketchObject", "Sketch003")
sketch4.AttachmentSupport = (doc.getObject("YZ_Plane"), [""])
sketch4.MapMode = "FlatFace"
sketch4.AttachmentOffset = App.Placement(Vector(0, 0, 30), App.Rotation())
sketch4.addGeometry(Part.LineSegment(Vector(-9.5, 6, 0), Vector(9.5, 6, 0)), False)
sketch4.addGeometry(Part.LineSegment(Vector(9.5, 6, 0), Vector(9.5, 16, 0)), False)
sketch4.addGeometry(Part.LineSegment(Vector(9.5, 16, 0), Vector(0, 32.49523, 0)), False)
sketch4.addGeometry(Part.LineSegment(Vector(0, 32.49523, 0), Vector(-9.5, 16, 0)), False)
sketch4.addGeometry(Part.LineSegment(Vector(-9.5, 16, 0), Vector(-9.5, 6, 0)), False)
sketch4.addConstraint(Sketcher.Constraint("Coincident", 0, 2, 1, 1))
sketch4.addConstraint(Sketcher.Constraint("Coincident", 1, 2, 2, 1))
sketch4.addConstraint(Sketcher.Constraint("Coincident", 2, 2, 3, 1))
sketch4.addConstraint(Sketcher.Constraint("Coincident", 3, 2, 4, 1))
sketch4.addConstraint(Sketcher.Constraint("Coincident", 4, 2, 0, 1))
sketch4.addConstraint(Sketcher.Constraint("Horizontal", 0))
sketch4.addConstraint(Sketcher.Constraint("Vertical", 1))
sketch4.addConstraint(Sketcher.Constraint("Vertical", 4))
sketch4.addConstraint(Sketcher.Constraint("Symmetric", 1, 2, 3, 2, -2))
sketch4.addConstraint(Sketcher.Constraint("PointOnObject", 2, 2, -2))
sketch4.addConstraint(Sketcher.Constraint("DistanceX", 0, 1, 0, 2, Q("19 mm")))
sketch4.addConstraint(Sketcher.Constraint("DistanceY", 1, 1, 1, 2, Q("10 mm")))
sketch4.addConstraint(Sketcher.Constraint("DistanceY", -1, 1, 0, 2, Q("6 mm")))
sketch4.addConstraint(Sketcher.Constraint("Distance", 2, Q("19.035299 mm")))
sketch4.setExpression("Constraints[10]", "Params.sketch4_width")
sketch4.setExpression("Constraints[11]", "Params.sketch4_height")
pocket1 = body.newObject("PartDesign::Pocket", "Pocket")
pocket1.Profile = sketch4
pocket1.setExpression("Length", "Params.pocket1_length")
doc.recompute()

fillet3 = body.newObject("PartDesign::Fillet", "Fillet002")
fillet3.Base = (pocket1, edges_at(pocket1, [
    (25.375, -9.5, 6),
    (-25.375, -9.5, 6),
    (25.375, 9.5, 6),
    (-25.375, 9.5, 6),
    (25.375, 9.5, 16),
    (-25.375, 9.5, 16),
    (25.375, -9.5, 16),
    (-25.375, -9.5, 16),
]))
fillet3.setExpression("Radius", "Params.fillet3_radius")

doc.recompute()
